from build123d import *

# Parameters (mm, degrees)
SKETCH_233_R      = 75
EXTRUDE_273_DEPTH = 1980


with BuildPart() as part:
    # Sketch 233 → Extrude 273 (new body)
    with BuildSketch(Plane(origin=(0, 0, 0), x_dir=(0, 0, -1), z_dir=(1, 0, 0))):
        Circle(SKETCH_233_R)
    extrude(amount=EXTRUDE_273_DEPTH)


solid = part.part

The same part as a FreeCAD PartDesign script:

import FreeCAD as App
import Part
import Sketcher
from FreeCAD import Vector

doc = App.newDocument("Part")
body = doc.addObject("PartDesign::Body", "Body")

sketch1 = body.newObject("Sketcher::SketchObject", "Sketch")
sketch1.AttachmentSupport = (doc.getObject("YZ_Plane"), [""])
sketch1.MapMode = "FlatFace"
sketch1.addGeometry(Part.Circle(Vector(0, 0, 0), Vector(0, 0, 1), 75), False)
sketch1.addConstraint([
    Sketcher.Constraint("Coincident", 0, 3, -1, 1),
    Sketcher.Constraint("Diameter", 0, 150.0),
])
pad1 = body.newObject("PartDesign::Pad", "Pad")
pad1.Profile = sketch1
pad1.Length = 1980

doc.recompute()
